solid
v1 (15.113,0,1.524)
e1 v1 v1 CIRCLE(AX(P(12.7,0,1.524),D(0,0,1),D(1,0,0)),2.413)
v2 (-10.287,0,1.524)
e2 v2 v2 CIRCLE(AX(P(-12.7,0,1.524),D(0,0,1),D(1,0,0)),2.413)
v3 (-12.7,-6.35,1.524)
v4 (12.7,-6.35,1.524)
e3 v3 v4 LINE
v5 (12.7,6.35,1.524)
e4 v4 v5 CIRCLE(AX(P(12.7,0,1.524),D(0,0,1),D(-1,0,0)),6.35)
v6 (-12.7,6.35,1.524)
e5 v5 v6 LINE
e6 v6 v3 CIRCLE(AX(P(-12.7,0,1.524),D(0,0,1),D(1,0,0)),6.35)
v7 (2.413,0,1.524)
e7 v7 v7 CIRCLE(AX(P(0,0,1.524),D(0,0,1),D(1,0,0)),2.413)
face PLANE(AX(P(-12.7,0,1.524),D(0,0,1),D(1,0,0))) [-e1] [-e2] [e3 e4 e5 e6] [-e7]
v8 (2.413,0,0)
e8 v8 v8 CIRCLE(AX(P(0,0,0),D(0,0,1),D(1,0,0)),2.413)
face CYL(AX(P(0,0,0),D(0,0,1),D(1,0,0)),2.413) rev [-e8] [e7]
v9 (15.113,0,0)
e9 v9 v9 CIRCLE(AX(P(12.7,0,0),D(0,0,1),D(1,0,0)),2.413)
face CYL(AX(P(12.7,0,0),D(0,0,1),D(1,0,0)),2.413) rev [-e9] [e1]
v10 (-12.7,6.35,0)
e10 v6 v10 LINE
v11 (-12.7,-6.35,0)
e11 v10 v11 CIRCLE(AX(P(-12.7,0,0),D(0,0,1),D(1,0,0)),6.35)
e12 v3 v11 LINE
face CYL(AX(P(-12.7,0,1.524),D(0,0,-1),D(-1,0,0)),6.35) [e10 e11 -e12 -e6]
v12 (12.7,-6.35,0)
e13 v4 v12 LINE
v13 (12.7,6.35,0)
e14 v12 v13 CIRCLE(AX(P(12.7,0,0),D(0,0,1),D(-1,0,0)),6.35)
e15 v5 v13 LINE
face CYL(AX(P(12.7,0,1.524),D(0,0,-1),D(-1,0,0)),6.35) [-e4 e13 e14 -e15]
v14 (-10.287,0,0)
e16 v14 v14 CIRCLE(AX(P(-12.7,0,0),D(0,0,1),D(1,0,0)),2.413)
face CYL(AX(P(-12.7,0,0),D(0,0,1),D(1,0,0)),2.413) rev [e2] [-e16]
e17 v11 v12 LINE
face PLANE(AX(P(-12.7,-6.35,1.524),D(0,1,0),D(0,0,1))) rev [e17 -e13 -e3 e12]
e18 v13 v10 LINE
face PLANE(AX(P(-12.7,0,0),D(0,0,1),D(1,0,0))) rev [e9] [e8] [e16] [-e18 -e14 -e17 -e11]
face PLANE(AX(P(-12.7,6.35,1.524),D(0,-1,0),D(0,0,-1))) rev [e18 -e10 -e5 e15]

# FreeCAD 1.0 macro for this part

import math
import FreeCAD as App
import Part
import Sketcher

V = App.Vector
Q = App.Units.Quantity

doc = App.newDocument("Part")
params = doc.addObject("Spreadsheet::Sheet", "Params")
for row, (alias, value) in enumerate([
    ("sketch1_width", "1 in"),
    ("sketch1_radius", "0.25 in"),
    ("pad1_length", "0.06 in"),
    ("sketch2_diameter", "0.19 in"),
    ("linearpattern_pitch", "0.5 in"),
], start=1):
    params.set(f"A{row}", alias)
    params.set(f"B{row}", "=" + value)
    params.setAlias(f"B{row}", alias)

body = doc.addObject("PartDesign::Body", "Body")

# Sketch on XY plane
sketch1 = doc.addObject("Sketcher::SketchObject", "Sketch")
body.addObject(sketch1)
sketch1.AttachmentSupport = (doc.XY_Plane, [""])
sketch1.MapMode = "FlatFace"
sketch1.addGeometry([
    Part.LineSegment(V(-13, -6, 0), V(13, -6, 0)),
    Part.ArcOfCircle(Part.Circle(V(13, 0, 0), V(0, 0, 1), 6), math.radians(-90), math.radians(90)),
    Part.LineSegment(V(13, 6, 0), V(-13, 6, 0)),
    Part.ArcOfCircle(Part.Circle(V(-13, 0, 0), V(0, 0, 1), 6), math.radians(90), math.radians(270)),
], False)
sketch1.addConstraint([
    Sketcher.Constraint("Tangent", 0, 2, 1, 1),
    Sketcher.Constraint("Tangent", 1, 2, 2, 1),
    Sketcher.Constraint("Tangent", 2, 2, 3, 1),
    Sketcher.Constraint("Tangent", 3, 2, 0, 1),
    Sketcher.Constraint("Horizontal", 0),
    Sketcher.Constraint("Horizontal", 2),
    Sketcher.Constraint("Symmetric", 1, 3, 3, 3, -1, 1),
    Sketcher.Constraint("DistanceX", 0, 1, 0, 2, Q("1 in")),
    Sketcher.Constraint("Radius", 1, Q("0.25 in")),
])
sketch1.setExpression("Constraints[7]", "Params.sketch1_width")
sketch1.setExpression("Constraints[8]", "Params.sketch1_radius")
pad1 = doc.addObject("PartDesign::Pad", "Pad")
body.addObject(pad1)
pad1.Profile = sketch1
pad1.setExpression("Length", "Params.pad1_length")

# Sketch on XY plane
sketch2 = doc.addObject("Sketcher::SketchObject", "Sketch001")
body.addObject(sketch2)
sketch2.AttachmentSupport = (doc.XY_Plane, [""])
sketch2.MapMode = "FlatFace"
sketch2.AttachmentOffset = App.Placement(V(0, 0, 0.06 * 25.4), App.Rotation())
sketch2.addGeometry(Part.Circle(V(-12.7, 0, 0), V(0, 0, 1), 2.4), False)
sketch2.addConstraint([
    Sketcher.Constraint("PointOnObject", 0, 3, -1),
    Sketcher.Constraint("Diameter", 0, Q("0.19 in")),
    Sketcher.Constraint("DistanceX", 0, 3, -1, 1, Q("0.5 in")),
])
sketch2.setExpression("Constraints[1]", "Params.sketch2_diameter")
pocket1 = doc.addObject("PartDesign::Pocket", "Pocket")
body.addObject(pocket1)
pocket1.Profile = sketch2
pocket1.Type = "ThroughAll"
doc.recompute()

linearpattern = doc.addObject("PartDesign::LinearPattern", "LinearPattern")
body.addObject(linearpattern)
linearpattern.Originals = [pocket1]
linearpattern.Direction = (doc.X_Axis, [""])
linearpattern.Mode = "offset"
linearpattern.setExpression("Offset", "Params.linearpattern_pitch")
linearpattern.Occurrences = 3
body.Tip = linearpattern

doc.recompute()
